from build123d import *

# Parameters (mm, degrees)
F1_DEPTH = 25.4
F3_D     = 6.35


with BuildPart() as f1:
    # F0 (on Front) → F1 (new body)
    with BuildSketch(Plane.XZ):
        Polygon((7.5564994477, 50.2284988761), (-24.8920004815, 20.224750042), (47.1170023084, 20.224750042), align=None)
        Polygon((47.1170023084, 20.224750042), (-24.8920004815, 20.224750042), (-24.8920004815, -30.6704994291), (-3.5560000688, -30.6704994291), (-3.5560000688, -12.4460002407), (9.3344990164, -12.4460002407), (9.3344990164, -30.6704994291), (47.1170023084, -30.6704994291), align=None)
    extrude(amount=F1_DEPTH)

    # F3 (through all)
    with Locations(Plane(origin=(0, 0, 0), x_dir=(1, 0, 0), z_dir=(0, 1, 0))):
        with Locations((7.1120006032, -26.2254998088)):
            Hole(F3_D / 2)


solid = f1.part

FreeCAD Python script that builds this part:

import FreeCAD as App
import Part
import Sketcher
Q = App.Units.Quantity

doc = App.newDocument("Part")
body = doc.addObject("PartDesign::Body", "Body")

sketch1 = body.newObject("Sketcher::SketchObject", "Sketch")
sketch1.AttachmentSupport = (doc.getObject("XZ_Plane"), [""])
sketch1.MapMode = "FlatFace"
sketch1.addGeometry([
    Part.LineSegment(App.Vector(8, 50, 0), App.Vector(-25, 20, 0)),
    Part.LineSegment(App.Vector(-25, 20, 0), App.Vector(-25, -31, 0)),
    Part.LineSegment(App.Vector(-25, -31, 0), App.Vector(-4, -31, 0)),
    Part.LineSegment(App.Vector(-4, -31, 0), App.Vector(-4, -12, 0)),
    Part.LineSegment(App.Vector(-4, -12, 0), App.Vector(9, -12, 0)),
    Part.LineSegment(App.Vector(9, -12, 0), App.Vector(9, -31, 0)),
    Part.LineSegment(App.Vector(9, -31, 0), App.Vector(47, -31, 0)),
    Part.LineSegment(App.Vector(47, -31, 0), App.Vector(47, 20, 0)),
    Part.LineSegment(App.Vector(47, 20, 0), App.Vector(8, 50, 0)),
], False)
sketch1.addConstraint([
    Sketcher.Constraint("Coincident", 0, 2, 1, 1),
    Sketcher.Constraint("Coincident", 1, 2, 2, 1),
    Sketcher.Constraint("Coincident", 2, 2, 3, 1),
    Sketcher.Constraint("Coincident", 3, 2, 4, 1),
    Sketcher.Constraint("Coincident", 4, 2, 5, 1),
    Sketcher.Constraint("Coincident", 5, 2, 6, 1),
    Sketcher.Constraint("Coincident", 6, 2, 7, 1),
    Sketcher.Constraint("Coincident", 7, 2, 8, 1),
    Sketcher.Constraint("Coincident", 8, 2, 0, 1),
    Sketcher.Constraint("Vertical", 1),
    Sketcher.Constraint("Horizontal", 2),
    Sketcher.Constraint("Vertical", 3),
    Sketcher.Constraint("Horizontal", 4),
    Sketcher.Constraint("Vertical", 5),
    Sketcher.Constraint("Horizontal", 6),
    Sketcher.Constraint("Vertical", 7),
    Sketcher.Constraint("Horizontal", 2, 2, 5, 2),
    Sketcher.Constraint("Horizontal", 0, 2, 7, 2),
    Sketcher.Constraint("DistanceX", 2, 1, 2, 2, Q("0.84 in")),
    Sketcher.Constraint("DistanceX", 0, 2, -1, 1, Q("0.98 in")),
    Sketcher.Constraint("DistanceY", 3, 2, -1, 1, Q("0.49 in")),
    Sketcher.Constraint("DistanceX", 8, 2, 4, 2, Q("0.07 in")),
    Sketcher.Constraint("DistanceX", 4, 1, 4, 2, Q("0.5075 in")),
    Sketcher.Constraint("DistanceX", 6, 1, 6, 2, Q("1.4875001 in")),
    Sketcher.Constraint("DistanceY", 3, 1, 3, 2, Q("0.7175 in")),
    Sketcher.Constraint("DistanceY", 5, 2, 8, 2, Q("3.1849999 in")),
    Sketcher.Constraint("DistanceY", 1, 2, 1, 1, Q("50.895249 mm")),
])
pad1 = body.newObject("PartDesign::Pad", "Pad")
pad1.Profile = sketch1
pad1.Length = Q("1 in")

sketch2 = body.newObject("Sketcher::SketchObject", "Sketch001")
sketch2.AttachmentSupport = (doc.getObject("XZ_Plane"), [""])
sketch2.MapMode = "FlatFace"
sketch2.addGeometry(Part.Circle(App.Vector(7.1, 26.2, 0), App.Vector(0, 0, 1), 3.2), False)
sketch2.addConstraint([
    Sketcher.Constraint("Diameter", 0, Q("0.25 in")),
    Sketcher.Constraint("DistanceX", -1, 1, 0, 3, Q("0.28 in")),
    Sketcher.Constraint("DistanceY", -1, 1, 0, 3, Q("1.0325 in")),
])
doc.recompute()
hole = body.newObject("PartDesign::Hole", "Hole")
hole.Profile = sketch2
hole.ThreadType = "None"
hole.Diameter = Q("0.25 in")
hole.DepthType = "ThroughAll"
hole.Reversed = True

doc.recompute()
